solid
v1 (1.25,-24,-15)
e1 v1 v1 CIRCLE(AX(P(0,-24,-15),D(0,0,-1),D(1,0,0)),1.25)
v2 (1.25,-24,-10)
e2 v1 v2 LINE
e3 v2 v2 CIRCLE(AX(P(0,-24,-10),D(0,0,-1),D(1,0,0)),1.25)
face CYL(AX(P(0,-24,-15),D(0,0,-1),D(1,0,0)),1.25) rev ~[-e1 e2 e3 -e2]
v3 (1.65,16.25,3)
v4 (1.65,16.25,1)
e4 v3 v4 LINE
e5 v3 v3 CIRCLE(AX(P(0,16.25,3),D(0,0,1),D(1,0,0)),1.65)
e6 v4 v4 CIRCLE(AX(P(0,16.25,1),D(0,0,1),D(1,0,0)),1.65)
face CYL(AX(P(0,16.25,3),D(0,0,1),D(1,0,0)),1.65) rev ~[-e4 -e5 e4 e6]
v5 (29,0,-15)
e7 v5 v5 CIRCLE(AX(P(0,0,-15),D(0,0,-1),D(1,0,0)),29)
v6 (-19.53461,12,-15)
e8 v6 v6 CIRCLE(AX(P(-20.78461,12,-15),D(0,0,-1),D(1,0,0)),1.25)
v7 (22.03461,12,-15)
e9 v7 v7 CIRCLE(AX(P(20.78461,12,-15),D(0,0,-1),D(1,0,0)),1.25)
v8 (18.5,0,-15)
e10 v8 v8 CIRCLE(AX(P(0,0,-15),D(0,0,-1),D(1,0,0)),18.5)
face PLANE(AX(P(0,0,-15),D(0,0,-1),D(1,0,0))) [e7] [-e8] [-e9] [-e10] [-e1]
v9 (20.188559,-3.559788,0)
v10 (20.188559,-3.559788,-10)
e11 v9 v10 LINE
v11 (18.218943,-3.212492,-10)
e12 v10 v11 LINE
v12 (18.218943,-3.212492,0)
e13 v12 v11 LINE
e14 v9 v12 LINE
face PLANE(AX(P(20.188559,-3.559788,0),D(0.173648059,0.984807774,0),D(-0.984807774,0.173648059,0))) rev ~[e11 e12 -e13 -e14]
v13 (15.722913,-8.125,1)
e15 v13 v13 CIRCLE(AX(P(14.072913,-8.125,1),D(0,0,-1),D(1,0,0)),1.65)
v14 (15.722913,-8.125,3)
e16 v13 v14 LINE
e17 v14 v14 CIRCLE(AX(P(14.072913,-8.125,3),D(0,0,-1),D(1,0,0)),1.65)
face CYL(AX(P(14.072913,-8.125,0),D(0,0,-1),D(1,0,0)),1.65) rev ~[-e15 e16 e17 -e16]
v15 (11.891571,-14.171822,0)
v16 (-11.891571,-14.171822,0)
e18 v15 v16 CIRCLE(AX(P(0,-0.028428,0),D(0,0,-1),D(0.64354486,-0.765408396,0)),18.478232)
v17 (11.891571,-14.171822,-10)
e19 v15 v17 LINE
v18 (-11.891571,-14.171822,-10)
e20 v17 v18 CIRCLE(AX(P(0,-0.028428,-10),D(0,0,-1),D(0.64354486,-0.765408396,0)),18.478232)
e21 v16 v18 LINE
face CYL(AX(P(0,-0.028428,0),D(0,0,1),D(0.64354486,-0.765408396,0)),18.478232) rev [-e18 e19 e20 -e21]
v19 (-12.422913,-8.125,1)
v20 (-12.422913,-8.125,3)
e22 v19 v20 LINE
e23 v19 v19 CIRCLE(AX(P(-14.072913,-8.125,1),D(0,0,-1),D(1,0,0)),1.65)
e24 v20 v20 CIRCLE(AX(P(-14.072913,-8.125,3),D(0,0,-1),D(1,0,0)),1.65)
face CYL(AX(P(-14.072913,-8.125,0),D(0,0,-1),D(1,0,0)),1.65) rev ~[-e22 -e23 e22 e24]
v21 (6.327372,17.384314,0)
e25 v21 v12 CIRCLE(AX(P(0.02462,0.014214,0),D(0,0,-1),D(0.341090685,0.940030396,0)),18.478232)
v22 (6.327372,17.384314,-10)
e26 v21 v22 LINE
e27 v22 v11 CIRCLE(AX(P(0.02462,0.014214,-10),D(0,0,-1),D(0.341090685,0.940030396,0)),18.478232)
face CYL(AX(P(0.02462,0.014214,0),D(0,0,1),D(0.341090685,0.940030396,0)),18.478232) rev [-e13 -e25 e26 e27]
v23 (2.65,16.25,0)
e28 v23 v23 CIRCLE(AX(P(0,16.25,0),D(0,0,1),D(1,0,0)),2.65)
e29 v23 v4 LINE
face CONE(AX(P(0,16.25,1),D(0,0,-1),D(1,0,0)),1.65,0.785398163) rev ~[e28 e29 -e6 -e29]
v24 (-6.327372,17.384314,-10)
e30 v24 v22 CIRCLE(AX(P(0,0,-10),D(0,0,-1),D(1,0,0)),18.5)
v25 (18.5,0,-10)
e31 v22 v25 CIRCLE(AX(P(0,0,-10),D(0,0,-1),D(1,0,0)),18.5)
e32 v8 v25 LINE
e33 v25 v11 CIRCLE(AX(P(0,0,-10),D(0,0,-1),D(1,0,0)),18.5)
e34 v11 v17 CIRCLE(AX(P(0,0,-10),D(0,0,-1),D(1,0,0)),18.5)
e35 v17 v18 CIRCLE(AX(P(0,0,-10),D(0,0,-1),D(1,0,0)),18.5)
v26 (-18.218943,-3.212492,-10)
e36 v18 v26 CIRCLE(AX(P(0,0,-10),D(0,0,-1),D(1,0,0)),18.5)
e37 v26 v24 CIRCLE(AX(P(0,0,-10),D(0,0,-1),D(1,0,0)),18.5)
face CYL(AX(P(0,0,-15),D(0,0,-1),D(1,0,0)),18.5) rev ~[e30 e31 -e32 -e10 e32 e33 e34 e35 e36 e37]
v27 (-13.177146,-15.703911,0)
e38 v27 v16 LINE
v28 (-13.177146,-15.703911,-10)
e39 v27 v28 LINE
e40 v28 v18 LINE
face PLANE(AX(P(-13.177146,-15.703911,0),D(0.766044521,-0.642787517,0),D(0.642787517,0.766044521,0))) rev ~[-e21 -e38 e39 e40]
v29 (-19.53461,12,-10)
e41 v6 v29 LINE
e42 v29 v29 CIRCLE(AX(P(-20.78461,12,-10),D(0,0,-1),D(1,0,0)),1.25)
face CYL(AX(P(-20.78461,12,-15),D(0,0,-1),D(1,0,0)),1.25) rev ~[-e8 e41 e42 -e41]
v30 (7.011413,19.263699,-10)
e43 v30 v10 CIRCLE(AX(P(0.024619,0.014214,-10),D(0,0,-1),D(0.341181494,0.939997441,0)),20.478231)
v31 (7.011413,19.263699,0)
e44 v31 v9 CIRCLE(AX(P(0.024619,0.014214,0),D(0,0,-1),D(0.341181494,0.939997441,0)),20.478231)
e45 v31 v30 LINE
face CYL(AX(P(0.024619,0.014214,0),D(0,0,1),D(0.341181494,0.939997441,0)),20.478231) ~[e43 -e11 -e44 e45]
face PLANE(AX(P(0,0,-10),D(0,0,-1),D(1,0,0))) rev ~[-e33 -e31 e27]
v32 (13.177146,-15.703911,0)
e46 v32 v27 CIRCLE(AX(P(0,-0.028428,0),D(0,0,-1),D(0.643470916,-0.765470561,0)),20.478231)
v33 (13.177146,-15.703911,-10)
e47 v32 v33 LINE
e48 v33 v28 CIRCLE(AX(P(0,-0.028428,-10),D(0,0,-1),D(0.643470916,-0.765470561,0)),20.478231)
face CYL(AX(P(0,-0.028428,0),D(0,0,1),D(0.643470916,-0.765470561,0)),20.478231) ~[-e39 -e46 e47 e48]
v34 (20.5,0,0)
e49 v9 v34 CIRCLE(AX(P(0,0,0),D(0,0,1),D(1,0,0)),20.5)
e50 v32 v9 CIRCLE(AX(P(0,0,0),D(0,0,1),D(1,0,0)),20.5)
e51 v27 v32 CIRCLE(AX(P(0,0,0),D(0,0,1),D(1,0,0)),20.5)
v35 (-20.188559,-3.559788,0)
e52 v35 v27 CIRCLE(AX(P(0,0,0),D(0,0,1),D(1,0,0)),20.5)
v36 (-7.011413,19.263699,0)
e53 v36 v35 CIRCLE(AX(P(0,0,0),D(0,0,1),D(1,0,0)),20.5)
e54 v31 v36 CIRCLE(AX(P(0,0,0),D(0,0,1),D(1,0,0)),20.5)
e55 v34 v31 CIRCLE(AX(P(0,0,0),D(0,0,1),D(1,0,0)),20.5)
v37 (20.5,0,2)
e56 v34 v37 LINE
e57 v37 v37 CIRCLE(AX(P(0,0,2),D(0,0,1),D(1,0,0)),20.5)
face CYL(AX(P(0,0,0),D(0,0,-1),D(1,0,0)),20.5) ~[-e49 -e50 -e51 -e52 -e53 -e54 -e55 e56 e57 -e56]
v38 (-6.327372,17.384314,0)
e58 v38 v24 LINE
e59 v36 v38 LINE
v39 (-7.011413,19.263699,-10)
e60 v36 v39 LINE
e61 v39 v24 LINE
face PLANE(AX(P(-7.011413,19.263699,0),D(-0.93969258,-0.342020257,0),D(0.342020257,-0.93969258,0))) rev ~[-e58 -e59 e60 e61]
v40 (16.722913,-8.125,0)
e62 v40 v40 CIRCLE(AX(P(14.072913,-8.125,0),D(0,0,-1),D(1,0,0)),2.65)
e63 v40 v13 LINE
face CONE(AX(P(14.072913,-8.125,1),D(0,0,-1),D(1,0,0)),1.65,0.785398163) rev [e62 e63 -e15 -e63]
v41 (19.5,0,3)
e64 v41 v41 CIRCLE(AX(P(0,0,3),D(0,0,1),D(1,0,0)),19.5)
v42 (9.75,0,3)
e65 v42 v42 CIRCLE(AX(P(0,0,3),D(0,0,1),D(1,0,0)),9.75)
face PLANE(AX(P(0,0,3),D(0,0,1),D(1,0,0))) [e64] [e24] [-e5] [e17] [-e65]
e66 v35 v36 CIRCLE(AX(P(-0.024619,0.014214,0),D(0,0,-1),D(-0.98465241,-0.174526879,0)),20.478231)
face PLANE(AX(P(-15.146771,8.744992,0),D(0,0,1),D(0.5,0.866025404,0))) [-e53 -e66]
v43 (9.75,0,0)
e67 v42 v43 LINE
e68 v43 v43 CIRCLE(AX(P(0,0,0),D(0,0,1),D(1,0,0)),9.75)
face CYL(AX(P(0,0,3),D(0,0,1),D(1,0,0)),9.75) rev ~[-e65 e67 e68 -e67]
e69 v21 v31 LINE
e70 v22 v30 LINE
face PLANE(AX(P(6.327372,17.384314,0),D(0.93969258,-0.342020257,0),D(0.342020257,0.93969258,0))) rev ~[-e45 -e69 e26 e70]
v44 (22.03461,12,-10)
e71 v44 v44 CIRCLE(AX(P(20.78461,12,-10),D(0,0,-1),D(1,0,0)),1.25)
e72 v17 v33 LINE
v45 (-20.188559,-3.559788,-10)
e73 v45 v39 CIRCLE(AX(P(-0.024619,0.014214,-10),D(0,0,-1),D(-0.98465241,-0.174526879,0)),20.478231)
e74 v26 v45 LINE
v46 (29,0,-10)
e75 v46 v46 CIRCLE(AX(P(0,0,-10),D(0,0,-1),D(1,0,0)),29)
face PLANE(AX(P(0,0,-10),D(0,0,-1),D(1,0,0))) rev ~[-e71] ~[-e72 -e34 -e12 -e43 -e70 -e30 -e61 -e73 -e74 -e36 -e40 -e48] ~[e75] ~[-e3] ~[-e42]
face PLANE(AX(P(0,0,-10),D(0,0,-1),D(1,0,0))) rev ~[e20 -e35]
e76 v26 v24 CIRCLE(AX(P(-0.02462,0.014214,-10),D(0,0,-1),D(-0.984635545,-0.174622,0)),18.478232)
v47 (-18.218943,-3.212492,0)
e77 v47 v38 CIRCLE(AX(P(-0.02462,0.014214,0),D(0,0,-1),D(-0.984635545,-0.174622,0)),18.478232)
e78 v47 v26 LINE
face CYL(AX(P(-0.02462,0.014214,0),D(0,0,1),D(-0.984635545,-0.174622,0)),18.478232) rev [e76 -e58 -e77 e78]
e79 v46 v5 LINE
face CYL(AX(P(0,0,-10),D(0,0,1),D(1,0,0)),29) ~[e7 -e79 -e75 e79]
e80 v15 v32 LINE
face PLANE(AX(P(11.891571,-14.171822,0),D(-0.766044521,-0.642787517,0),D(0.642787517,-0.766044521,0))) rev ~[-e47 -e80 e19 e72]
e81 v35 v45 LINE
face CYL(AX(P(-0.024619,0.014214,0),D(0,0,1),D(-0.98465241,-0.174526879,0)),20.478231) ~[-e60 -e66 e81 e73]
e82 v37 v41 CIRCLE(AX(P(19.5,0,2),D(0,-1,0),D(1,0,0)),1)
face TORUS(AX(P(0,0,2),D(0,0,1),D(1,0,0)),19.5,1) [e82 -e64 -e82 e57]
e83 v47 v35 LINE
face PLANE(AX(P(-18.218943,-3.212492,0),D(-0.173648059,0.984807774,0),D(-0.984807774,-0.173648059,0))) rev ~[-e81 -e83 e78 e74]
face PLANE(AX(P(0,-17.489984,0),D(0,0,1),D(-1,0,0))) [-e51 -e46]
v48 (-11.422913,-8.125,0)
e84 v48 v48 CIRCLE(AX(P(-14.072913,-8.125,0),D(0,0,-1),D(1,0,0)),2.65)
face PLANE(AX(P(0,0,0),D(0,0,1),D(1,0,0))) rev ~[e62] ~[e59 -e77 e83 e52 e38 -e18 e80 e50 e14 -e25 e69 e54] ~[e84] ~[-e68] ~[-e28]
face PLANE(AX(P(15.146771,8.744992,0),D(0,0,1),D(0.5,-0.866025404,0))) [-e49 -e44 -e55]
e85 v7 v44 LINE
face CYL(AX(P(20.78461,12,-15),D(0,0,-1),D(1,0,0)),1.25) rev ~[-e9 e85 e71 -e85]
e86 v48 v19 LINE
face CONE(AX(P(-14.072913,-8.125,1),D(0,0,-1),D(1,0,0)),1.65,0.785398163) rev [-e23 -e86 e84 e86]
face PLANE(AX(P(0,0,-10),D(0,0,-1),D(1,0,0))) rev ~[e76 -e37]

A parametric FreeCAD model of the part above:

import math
import FreeCAD as App
import Part
import Sketcher

V = App.Vector
Q = App.Units.Quantity


def edges_at(feature, points):
    """Names of the edges that pass closest to the given points."""
    edges = feature.Shape.Edges
    near = lambda p: min(range(len(edges)), key=lambda i: edges[i].distToShape(Part.Vertex(*p))[0])
    return sorted({f"Edge{near(p) + 1}" for p in points})

doc = App.newDocument("Part")
body = doc.addObject("PartDesign::Body", "Body")

# Sketch on XY plane
sketch1 = body.newObject("Sketcher::SketchObject", "Sketch")
sketch1.AttachmentSupport = (doc.getObject("XY_Plane"), [""])
sketch1.MapMode = "FlatFace"
sketch1.addGeometry(Part.Circle(V(0, 0, 0), V(0, 0, 1), 20.5), False)
sketch1.addConstraint([
    Sketcher.Constraint("Coincident", 0, 3, -1, 1),
    Sketcher.Constraint("Diameter", 0, Q("41 mm")),
])
pad1 = body.newObject("PartDesign::Pad", "Pad")
pad1.Profile = sketch1
pad1.Length = 3

# Sketch on XY plane
sketch2 = body.newObject("Sketcher::SketchObject", "Sketch001")
sketch2.AttachmentSupport = (doc.getObject("XY_Plane"), [""])
sketch2.MapMode = "FlatFace"
sketch2.AttachmentOffset = App.Placement(V(0, 0, 3), App.Rotation())
sketch2.addGeometry(Part.Circle(V(0, 0, 0), V(0, 0, 1), 9.75), False)
sketch2.addConstraint([
    Sketcher.Constraint("Coincident", 0, 3, -1, 1),
    Sketcher.Constraint("Diameter", 0, Q("19.5 mm")),
])
pocket1 = body.newObject("PartDesign::Pocket", "Pocket")
pocket1.Profile = sketch2
pocket1.Length = 3

# Sketch on XY plane
sketch3 = body.newObject("Sketcher::SketchObject", "Sketch002")
sketch3.AttachmentSupport = (doc.getObject("XY_Plane"), [""])
sketch3.MapMode = "FlatFace"
sketch3.AttachmentOffset = App.Placement(V(0, 0, 3), App.Rotation())
sketch3.addGeometry(Part.Circle(V(0, 16.25, 0), V(0, 0, 1), 1.65), False)
sketch3.addConstraint([
    Sketcher.Constraint("PointOnObject", 0, 3, -2),
    Sketcher.Constraint("Diameter", 0, Q("3.3 mm")),
    Sketcher.Constraint("DistanceY", -1, 1, 0, 3, Q("16.25 mm")),
])
pocket2 = body.newObject("PartDesign::Pocket", "Pocket001")
pocket2.Profile = sketch3
pocket2.Length = 25

# Sketch on XY plane
sketch4 = body.newObject("Sketcher::SketchObject", "Sketch003")
sketch4.AttachmentSupport = (doc.getObject("XY_Plane"), [""])
sketch4.MapMode = "FlatFace"
sketch4.addGeometry([
    Part.Circle(V(-14.072913, -8.125, 0), V(0, 0, 1), 1.65),
    Part.Circle(V(14.072913, -8.125, 0), V(0, 0, 1), 1.65),
], False)
sketch4.addConstraint([
    Sketcher.Constraint("Equal", 0, 1),
    Sketcher.Constraint("Symmetric", 0, 3, 1, 3, -2),
    Sketcher.Constraint("Diameter", 0, Q("3.3 mm")),
    Sketcher.Constraint("DistanceY", 0, 3, -1, 1, Q("8.125 mm")),
    Sketcher.Constraint("DistanceX", 0, 3, -1, 1, Q("14.072913 mm")),
])
pocket3 = body.newObject("PartDesign::Pocket", "Pocket002")
pocket3.Profile = sketch4
pocket3.Length = 25
pocket3.Reversed = True

# Sketch on XY plane
sketch5 = body.newObject("Sketcher::SketchObject", "Sketch004")
sketch5.AttachmentSupport = (doc.getObject("XY_Plane"), [""])
sketch5.MapMode = "FlatFace"
sketch5.addGeometry([
    Part.ArcOfCircle(Part.Circle(V(0, -0.028428, 0), V(0, 0, 1), 18.478232), math.radians(-130.056662), math.radians(-49.943338)),
    Part.LineSegment(V(11.891571, -14.171822, 0), V(13.177146, -15.703911, 0)),
    Part.ArcOfCircle(Part.Circle(V(0, -0.028428, 0), V(0, 0, 1), 20.478231), math.radians(-130.051127), math.radians(-49.948873)),
    Part.LineSegment(V(-13.177146, -15.703911, 0), V(-11.891571, -14.171822, 0)),
], False)
sketch5.addConstraint([
    Sketcher.Constraint("Coincident", 0, 2, 1, 1),
    Sketcher.Constraint("Coincident", 1, 2, 2, 2),
    Sketcher.Constraint("Coincident", 2, 1, 3, 1),
    Sketcher.Constraint("Coincident", 3, 2, 0, 1),
    Sketcher.Constraint("Coincident", 2, 3, 0, 3),
    Sketcher.Constraint("Symmetric", 1, 2, 2, 1, -2),
    Sketcher.Constraint("Horizontal", 0, 2, 3, 2),
    Sketcher.Constraint("Angle", 1, Q("-50.000007 deg")),
    Sketcher.Constraint("Distance", 1, Q("2 mm")),
    Sketcher.Constraint("Radius", 0, Q("18.478232 mm")),
    Sketcher.Constraint("DistanceY", 0, 3, -1, 1, Q("0.028428 mm")),
    Sketcher.Constraint("DistanceX", -1, 1, 0, 2, Q("11.891571 mm")),
])
pad2 = body.newObject("PartDesign::Pad", "Pad001")
pad2.Profile = sketch5
pad2.Length = 10
pad2.Reversed = True
doc.recompute()

polarpattern = body.newObject("PartDesign::PolarPattern", "PolarPattern")
polarpattern.Originals = [pad2]
polarpattern.Axis = (doc.getObject("Z_Axis"), [""])
polarpattern.Angle = 360
polarpattern.Occurrences = 3
body.Tip = polarpattern

# Sketch on XY plane
sketch6 = body.newObject("Sketcher::SketchObject", "Sketch005")
sketch6.AttachmentSupport = (doc.getObject("XY_Plane"), [""])
sketch6.MapMode = "FlatFace"
sketch6.AttachmentOffset = App.Placement(V(0, 0, -10), App.Rotation())
sketch6.addGeometry(Part.Circle(V(0, 0, 0), V(0, 0, 1), 29), False)
sketch6.addConstraint([
    Sketcher.Constraint("Coincident", 0, 3, -1, 1),
    Sketcher.Constraint("Diameter", 0, Q("58 mm")),
])
pad3 = body.newObject("PartDesign::Pad", "Pad002")
pad3.Profile = sketch6
pad3.Length = 5
pad3.Reversed = True

# Sketch on XY plane
sketch7 = body.newObject("Sketcher::SketchObject", "Sketch006")
sketch7.AttachmentSupport = (doc.getObject("XY_Plane"), [""])
sketch7.MapMode = "FlatFace"
sketch7.AttachmentOffset = App.Placement(V(0, 0, -15), App.Rotation())
sketch7.addGeometry(Part.Circle(V(0, 0, 0), V(0, 0, 1), 18.5), False)
sketch7.addConstraint([
    Sketcher.Constraint("Coincident", 0, 3, -1, 1),
    Sketcher.Constraint("Diameter", 0, Q("37 mm")),
])
pocket4 = body.newObject("PartDesign::Pocket", "Pocket003")
pocket4.Profile = sketch7
pocket4.Length = 5
pocket4.Reversed = True
doc.recompute()

chamfer = body.newObject("PartDesign::Chamfer", "Chamfer")
chamfer.Base = (pocket4, edges_at(pocket4, [(12.423, -8.125, 0), (-1.65, 16.25, 0), (-15.723, -8.125, 0)]))
chamfer.Size = 1
doc.recompute()

fillet = body.newObject("PartDesign::Fillet", "Fillet")
fillet.Base = (chamfer, edges_at(chamfer, [(-20.5, 0, 3)]))
fillet.Radius = 1

# Sketch on XY plane
sketch8 = body.newObject("Sketcher::SketchObject", "Sketch007")
sketch8.AttachmentSupport = (doc.getObject("XY_Plane"), [""])
sketch8.MapMode = "FlatFace"
sketch8.AttachmentOffset = App.Placement(V(0, 0, -15), App.Rotation())
sketch8.addGeometry([
    Part.Circle(V(0, -24, 0), V(0, 0, 1), 1.25),
    Part.Circle(V(-20.78461, 12, 0), V(0, 0, 1), 1.25),
    Part.Circle(V(20.78461, 12, 0), V(0, 0, 1), 1.25),
], False)
sketch8.addConstraint([
    Sketcher.Constraint("Equal", 0, 1),
    Sketcher.Constraint("Equal", 1, 2),
    Sketcher.Constraint("Symmetric", 1, 3, 2, 3, -2),
    Sketcher.Constraint("PointOnObject", 0, 3, -2),
    Sketcher.Constraint("Diameter", 0, Q("2.5 mm")),
    Sketcher.Constraint("DistanceY", 0, 3, -1, 1, Q("24 mm")),
    Sketcher.Constraint("DistanceY", -1, 1, 1, 3, Q("12 mm")),
    Sketcher.Constraint("DistanceX", 1, 3, -1, 1, Q("20.78461 mm")),
])
pocket5 = body.newObject("PartDesign::Pocket", "Pocket004")
pocket5.Profile = sketch8
pocket5.Length = 25
pocket5.Reversed = True

doc.recompute()
